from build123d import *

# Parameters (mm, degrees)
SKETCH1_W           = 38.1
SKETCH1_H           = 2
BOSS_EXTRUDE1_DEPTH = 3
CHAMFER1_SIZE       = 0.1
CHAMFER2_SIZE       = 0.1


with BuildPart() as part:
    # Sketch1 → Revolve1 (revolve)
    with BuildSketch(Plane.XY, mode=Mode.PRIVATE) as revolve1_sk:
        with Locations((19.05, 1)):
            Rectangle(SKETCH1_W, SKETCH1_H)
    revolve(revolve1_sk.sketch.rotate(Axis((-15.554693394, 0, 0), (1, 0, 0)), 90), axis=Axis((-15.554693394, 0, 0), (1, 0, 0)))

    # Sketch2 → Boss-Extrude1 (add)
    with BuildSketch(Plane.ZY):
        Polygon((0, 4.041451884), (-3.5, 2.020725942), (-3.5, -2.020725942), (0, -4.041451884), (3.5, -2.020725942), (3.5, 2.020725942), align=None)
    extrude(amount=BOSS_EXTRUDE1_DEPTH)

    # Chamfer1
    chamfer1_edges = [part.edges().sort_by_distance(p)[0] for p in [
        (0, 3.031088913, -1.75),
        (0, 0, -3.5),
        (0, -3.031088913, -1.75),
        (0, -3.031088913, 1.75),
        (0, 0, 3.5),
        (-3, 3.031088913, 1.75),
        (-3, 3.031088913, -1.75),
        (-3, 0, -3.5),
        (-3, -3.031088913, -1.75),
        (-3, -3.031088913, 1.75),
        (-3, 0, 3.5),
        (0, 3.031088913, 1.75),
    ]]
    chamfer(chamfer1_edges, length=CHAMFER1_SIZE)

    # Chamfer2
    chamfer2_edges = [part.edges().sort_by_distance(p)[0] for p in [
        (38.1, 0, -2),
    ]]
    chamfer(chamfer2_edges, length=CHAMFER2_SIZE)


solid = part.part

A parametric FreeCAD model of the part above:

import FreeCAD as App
import Part
import Sketcher
from FreeCAD import Vector
Q = App.Units.Quantity


def edges_at(feature, points):
    """Names of the edges that pass closest to the given points."""
    edges = feature.Shape.Edges
    near = lambda p: min(range(len(edges)), key=lambda i: edges[i].distToShape(Part.Vertex(*p))[0])
    return sorted({f"Edge{near(p) + 1}" for p in points})

doc = App.newDocument("Part")
body = doc.addObject("PartDesign::Body", "Body")

# Sketch on XY plane
sketch1 = body.newObject("Sketcher::SketchObject", "Sketch")
sketch1.AttachmentSupport = (doc.getObject("XY_Plane"), [""])
sketch1.MapMode = "FlatFace"
sketch1.addGeometry([
    Part.LineSegment(Vector(0, 2, 0), Vector(0, 0, 0)),
    Part.LineSegment(Vector(0, 0, 0), Vector(38.1, 0, 0)),
    Part.LineSegment(Vector(38.1, 0, 0), Vector(38.1, 2, 0)),
    Part.LineSegment(Vector(38.1, 2, 0), Vector(0, 2, 0)),
], False)
sketch1.addConstraint([
    Sketcher.Constraint("Coincident", 0, 2, 1, 1),
    Sketcher.Constraint("Coincident", 1, 2, 2, 1),
    Sketcher.Constraint("Coincident", 2, 2, 3, 1),
    Sketcher.Constraint("Coincident", 3, 2, 0, 1),
    Sketcher.Constraint("Vertical", 0),
    Sketcher.Constraint("Horizontal", 1),
    Sketcher.Constraint("Vertical", 2),
    Sketcher.Constraint("Horizontal", 3),
    Sketcher.Constraint("Coincident", 0, 2, -1, 1),
    Sketcher.Constraint("DistanceY", 0, 2, 0, 1, Q("2 mm")),
    Sketcher.Constraint("DistanceX", 1, 1, 1, 2, Q("38.1 mm")),
])
revolution = body.newObject("PartDesign::Revolution", "Revolution")
revolution.Profile = sketch1
revolution.ReferenceAxis = (sketch1, ["H_Axis"])
revolution.Angle = 360

# Sketch on YZ plane
sketch2 = body.newObject("Sketcher::SketchObject", "Sketch001")
sketch2.AttachmentSupport = (doc.getObject("YZ_Plane"), [""])
sketch2.MapMode = "FlatFace"
sketch2.addGeometry([
    Part.LineSegment(Vector(4, 0, 0), Vector(2, -3.5, 0)),  # 0
    Part.LineSegment(Vector(2, -3.5, 0), Vector(-2, -3.5, 0)),  # 1
    Part.LineSegment(Vector(-2, -3.5, 0), Vector(-4, 0, 0)),  # 2
    Part.LineSegment(Vector(-4, 0, 0), Vector(-2, 3.5, 0)),  # 3
    Part.LineSegment(Vector(-2, 3.5, 0), Vector(2, 3.5, 0)),  # 4
    Part.LineSegment(Vector(2, 3.5, 0), Vector(4, 0, 0)),  # 5
], False)
sketch2.addConstraint([
    Sketcher.Constraint("Coincident", 0, 2, 1, 1),
    Sketcher.Constraint("Coincident", 1, 2, 2, 1),
    Sketcher.Constraint("Coincident", 2, 2, 3, 1),
    Sketcher.Constraint("Coincident", 3, 2, 4, 1),
    Sketcher.Constraint("Coincident", 4, 2, 5, 1),
    Sketcher.Constraint("Coincident", 5, 2, 0, 1),
    Sketcher.Constraint("Horizontal", 1),
    Sketcher.Constraint("Horizontal", 4),
    Sketcher.Constraint("Symmetric", 0, 2, 3, 2, -1, 1),
    Sketcher.Constraint("Symmetric", 2, 2, 5, 2, -1, 1),
    Sketcher.Constraint("PointOnObject", 2, 2, -1),
    Sketcher.Constraint("Parallel", 2, 5),
    Sketcher.Constraint("Vertical", 1, 2, 3, 2),
    Sketcher.Constraint("Angle", 0, Q("-120 deg")),
    Sketcher.Constraint("DistanceY", 1, 2, 3, 2, Q("7 mm")),
    Sketcher.Constraint("DistanceX", 1, 2, 1, 1, Q("4.041452 mm")),
])
pad1 = body.newObject("PartDesign::Pad", "Pad")
pad1.Profile = sketch2
pad1.Length = 3
pad1.Reversed = True
doc.recompute()

chamfer = body.newObject("PartDesign::Chamfer", "Chamfer")
chamfer.Base = (pad1, edges_at(pad1, [
    (0, 3.031, -1.75),
    (0, 0, -3.5),
    (0, -3.031, -1.75),
    (0, -3.031, 1.75),
    (0, 0, 3.5),
    (-3, 3.031, 1.75),
    (-3, 3.031, -1.75),
    (-3, 0, -3.5),
    (-3, -3.031, -1.75),
    (-3, -3.031, 1.75),
    (-3, 0, 3.5),
    (0, 3.031, 1.75),
]))
chamfer.Size = 0.1
doc.recompute()

chamfer2 = body.newObject("PartDesign::Chamfer", "Chamfer001")
chamfer2.Base = (chamfer, edges_at(chamfer, [(38.1, 0, -2)]))
chamfer2.Size = 0.1

doc.recompute()
